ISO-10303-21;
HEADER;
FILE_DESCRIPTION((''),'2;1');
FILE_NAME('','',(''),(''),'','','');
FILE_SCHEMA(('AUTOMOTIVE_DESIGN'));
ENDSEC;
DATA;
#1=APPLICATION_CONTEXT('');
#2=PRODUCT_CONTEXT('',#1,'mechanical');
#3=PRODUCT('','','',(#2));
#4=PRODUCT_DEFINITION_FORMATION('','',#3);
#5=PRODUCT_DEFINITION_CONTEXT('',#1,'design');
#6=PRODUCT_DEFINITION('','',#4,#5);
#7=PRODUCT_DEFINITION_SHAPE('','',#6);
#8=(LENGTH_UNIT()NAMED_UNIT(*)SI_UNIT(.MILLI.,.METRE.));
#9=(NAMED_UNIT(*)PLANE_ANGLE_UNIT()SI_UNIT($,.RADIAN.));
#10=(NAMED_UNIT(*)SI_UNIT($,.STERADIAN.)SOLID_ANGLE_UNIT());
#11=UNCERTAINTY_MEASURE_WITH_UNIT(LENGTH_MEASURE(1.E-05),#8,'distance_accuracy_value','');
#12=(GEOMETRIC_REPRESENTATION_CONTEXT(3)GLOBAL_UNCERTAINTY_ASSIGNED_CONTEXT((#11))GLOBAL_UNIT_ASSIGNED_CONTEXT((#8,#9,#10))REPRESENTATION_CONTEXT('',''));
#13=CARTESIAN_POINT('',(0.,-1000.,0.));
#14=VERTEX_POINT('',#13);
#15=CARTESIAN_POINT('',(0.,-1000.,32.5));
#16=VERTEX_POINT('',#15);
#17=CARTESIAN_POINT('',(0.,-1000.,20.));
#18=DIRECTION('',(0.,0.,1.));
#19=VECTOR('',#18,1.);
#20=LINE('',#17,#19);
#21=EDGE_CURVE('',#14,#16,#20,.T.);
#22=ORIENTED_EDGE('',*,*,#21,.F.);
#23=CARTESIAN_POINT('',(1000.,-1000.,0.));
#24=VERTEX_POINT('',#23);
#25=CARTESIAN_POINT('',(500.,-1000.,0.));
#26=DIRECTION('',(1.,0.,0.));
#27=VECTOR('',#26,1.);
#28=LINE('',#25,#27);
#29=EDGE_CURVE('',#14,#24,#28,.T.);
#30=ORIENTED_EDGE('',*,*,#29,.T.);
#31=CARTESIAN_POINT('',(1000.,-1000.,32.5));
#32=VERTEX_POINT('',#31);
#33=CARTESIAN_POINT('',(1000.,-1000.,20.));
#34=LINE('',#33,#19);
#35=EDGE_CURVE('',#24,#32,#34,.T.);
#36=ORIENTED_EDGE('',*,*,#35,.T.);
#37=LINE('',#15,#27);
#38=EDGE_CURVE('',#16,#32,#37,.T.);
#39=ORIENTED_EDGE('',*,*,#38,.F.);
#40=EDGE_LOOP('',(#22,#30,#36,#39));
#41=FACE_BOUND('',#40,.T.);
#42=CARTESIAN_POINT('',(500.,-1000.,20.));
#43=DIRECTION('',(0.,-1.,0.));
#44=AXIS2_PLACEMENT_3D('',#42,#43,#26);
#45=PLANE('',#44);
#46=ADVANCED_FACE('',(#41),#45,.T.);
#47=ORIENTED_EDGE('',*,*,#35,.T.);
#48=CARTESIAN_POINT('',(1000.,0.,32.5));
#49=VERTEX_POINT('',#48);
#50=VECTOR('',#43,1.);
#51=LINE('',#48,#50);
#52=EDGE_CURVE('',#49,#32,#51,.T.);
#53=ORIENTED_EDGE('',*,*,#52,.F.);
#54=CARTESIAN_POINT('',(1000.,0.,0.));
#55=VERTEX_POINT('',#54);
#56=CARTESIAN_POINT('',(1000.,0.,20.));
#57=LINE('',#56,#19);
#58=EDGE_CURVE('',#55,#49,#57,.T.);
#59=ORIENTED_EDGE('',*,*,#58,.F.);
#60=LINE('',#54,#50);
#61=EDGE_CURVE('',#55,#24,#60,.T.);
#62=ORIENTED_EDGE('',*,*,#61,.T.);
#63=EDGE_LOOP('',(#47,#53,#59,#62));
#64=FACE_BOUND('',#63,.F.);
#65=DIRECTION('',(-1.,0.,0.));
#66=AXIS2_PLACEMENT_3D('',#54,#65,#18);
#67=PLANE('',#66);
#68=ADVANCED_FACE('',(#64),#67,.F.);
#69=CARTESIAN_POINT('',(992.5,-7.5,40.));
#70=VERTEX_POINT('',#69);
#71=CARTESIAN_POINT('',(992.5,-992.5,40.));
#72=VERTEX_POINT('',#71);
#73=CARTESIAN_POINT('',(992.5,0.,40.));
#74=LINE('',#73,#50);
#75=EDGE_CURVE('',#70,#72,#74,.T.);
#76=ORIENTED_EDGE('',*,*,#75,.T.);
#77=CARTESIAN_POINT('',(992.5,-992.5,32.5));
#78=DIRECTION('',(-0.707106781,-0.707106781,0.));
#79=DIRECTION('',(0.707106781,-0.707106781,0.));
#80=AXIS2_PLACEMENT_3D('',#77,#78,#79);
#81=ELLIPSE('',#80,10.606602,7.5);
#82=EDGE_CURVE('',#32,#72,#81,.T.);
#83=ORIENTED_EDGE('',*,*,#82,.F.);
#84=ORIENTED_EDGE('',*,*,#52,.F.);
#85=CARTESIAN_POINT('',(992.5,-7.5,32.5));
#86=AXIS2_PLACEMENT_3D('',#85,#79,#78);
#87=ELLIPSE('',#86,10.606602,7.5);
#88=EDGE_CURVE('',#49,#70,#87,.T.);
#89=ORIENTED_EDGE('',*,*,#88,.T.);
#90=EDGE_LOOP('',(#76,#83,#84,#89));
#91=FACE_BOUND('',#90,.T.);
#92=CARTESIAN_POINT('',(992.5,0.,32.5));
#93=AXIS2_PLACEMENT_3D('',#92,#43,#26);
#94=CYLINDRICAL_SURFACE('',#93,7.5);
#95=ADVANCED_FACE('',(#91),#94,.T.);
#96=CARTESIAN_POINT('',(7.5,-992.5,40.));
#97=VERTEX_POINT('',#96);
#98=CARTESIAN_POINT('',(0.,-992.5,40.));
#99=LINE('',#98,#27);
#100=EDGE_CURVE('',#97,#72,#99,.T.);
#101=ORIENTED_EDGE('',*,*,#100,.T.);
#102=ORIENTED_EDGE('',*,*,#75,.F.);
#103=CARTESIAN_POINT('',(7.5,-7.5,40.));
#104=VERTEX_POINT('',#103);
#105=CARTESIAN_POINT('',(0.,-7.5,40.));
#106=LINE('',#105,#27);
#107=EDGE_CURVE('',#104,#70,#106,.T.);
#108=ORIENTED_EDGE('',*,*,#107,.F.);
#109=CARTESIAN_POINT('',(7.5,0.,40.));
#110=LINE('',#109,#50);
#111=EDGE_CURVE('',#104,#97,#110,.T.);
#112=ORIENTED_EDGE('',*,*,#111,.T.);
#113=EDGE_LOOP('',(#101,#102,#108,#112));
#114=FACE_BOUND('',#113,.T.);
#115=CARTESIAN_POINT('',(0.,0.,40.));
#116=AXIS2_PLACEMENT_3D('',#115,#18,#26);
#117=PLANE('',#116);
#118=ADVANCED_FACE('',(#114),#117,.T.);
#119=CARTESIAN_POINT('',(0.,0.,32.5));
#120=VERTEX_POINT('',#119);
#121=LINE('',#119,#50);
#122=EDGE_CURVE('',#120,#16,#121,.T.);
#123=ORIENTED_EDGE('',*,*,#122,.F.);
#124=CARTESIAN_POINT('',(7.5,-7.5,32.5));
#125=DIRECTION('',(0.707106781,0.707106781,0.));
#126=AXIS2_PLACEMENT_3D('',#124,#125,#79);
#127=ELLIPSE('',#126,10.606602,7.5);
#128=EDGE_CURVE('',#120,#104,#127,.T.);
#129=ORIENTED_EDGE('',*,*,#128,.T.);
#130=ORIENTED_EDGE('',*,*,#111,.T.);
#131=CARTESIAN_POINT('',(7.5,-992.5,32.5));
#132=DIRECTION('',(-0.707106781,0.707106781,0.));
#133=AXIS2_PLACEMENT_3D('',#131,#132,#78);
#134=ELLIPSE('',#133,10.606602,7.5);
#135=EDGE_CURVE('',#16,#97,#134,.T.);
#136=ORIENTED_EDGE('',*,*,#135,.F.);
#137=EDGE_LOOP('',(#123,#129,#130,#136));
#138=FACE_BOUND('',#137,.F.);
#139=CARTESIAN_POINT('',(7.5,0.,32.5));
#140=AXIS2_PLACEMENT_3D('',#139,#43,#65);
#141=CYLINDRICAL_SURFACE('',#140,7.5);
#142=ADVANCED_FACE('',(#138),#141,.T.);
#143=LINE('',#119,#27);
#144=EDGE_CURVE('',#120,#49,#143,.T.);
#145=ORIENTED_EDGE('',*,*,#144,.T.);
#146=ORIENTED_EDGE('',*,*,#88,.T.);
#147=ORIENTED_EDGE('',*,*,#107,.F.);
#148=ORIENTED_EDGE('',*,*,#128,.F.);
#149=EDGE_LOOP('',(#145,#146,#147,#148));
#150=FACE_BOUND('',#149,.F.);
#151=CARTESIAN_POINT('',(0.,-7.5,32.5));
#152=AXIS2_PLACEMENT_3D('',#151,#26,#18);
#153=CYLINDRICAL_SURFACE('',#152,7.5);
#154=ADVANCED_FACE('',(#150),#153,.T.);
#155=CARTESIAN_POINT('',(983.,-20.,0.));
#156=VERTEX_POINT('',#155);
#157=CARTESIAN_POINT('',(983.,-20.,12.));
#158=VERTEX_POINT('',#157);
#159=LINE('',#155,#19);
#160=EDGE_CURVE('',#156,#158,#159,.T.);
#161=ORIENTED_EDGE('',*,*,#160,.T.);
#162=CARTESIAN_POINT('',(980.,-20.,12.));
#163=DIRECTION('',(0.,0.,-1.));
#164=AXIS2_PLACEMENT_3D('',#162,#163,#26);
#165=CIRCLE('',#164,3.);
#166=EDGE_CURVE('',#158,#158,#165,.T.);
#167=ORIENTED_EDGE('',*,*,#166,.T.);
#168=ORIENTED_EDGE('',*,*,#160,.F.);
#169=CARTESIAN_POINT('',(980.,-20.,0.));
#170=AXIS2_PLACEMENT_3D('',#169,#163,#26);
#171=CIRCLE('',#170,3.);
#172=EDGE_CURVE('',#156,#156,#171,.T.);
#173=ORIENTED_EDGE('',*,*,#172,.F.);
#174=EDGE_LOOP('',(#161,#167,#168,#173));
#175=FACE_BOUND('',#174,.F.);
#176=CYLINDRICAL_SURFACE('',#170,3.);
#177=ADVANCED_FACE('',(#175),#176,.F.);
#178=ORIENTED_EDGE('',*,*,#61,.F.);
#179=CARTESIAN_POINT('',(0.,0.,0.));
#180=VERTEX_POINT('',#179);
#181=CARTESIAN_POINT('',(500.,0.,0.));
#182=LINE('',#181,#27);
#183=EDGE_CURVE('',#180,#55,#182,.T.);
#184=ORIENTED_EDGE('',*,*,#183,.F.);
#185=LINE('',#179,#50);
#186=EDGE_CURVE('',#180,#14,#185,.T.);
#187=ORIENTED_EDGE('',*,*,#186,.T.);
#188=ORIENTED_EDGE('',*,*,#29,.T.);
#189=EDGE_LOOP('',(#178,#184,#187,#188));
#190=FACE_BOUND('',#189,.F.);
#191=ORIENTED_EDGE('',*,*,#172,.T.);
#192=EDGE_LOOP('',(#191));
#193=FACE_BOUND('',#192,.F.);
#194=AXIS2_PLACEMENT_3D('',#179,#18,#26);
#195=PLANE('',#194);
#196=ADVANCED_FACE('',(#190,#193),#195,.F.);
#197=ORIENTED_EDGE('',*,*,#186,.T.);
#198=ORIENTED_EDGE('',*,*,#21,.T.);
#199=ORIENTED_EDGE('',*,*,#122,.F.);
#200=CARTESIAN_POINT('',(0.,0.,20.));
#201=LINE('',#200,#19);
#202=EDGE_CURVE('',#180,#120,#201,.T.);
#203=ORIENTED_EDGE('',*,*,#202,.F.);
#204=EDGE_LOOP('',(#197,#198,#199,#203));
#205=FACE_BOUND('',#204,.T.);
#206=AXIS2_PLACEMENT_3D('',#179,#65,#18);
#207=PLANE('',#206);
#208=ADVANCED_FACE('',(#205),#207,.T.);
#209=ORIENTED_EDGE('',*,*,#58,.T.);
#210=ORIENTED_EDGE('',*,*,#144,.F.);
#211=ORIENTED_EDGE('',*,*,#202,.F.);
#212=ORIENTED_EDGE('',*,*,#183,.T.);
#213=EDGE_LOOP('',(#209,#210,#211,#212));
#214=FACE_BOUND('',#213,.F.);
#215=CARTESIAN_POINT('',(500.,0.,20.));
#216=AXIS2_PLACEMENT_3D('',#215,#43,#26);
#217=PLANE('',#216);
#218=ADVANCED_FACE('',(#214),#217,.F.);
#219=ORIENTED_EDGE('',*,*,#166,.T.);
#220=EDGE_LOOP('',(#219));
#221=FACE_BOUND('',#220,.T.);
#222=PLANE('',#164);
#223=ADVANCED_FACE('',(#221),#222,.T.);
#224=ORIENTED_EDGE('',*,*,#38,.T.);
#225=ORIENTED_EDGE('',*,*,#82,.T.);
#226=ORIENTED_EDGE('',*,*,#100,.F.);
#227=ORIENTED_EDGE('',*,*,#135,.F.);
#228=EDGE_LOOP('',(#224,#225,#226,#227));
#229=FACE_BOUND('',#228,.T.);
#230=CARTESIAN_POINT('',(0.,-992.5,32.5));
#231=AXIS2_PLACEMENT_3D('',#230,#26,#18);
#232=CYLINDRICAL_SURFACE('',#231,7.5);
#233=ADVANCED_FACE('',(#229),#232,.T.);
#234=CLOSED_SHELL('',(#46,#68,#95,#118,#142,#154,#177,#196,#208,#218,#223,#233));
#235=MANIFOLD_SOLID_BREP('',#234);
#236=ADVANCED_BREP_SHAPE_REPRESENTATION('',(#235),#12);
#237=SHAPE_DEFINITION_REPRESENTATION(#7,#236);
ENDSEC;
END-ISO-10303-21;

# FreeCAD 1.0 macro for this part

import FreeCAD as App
import Part
import Sketcher

V = App.Vector
Q = App.Units.Quantity


def edges_at(feature, points):
    """Names of the edges that pass closest to the given points."""
    edges = feature.Shape.Edges
    near = lambda p: min(range(len(edges)), key=lambda i: edges[i].distToShape(Part.Vertex(*p))[0])
    return sorted({f"Edge{near(p) + 1}" for p in points})

doc = App.newDocument("Part")
body = doc.addObject("PartDesign::Body", "Body")

sketch1 = doc.addObject("Sketcher::SketchObject", "Sketch")
body.addObject(sketch1)
sketch1.AttachmentSupport = (doc.XZ_Plane, [""])
sketch1.MapMode = "FlatFace"
sketch1.addGeometry([
    Part.LineSegment(V(0, 40, 0), V(0, 0, 0)),
    Part.LineSegment(V(0, 0, 0), V(1000, 0, 0)),
    Part.LineSegment(V(1000, 0, 0), V(1000, 40, 0)),
    Part.LineSegment(V(1000, 40, 0), V(0, 40, 0)),
], False)
sketch1.addConstraint([
    Sketcher.Constraint("Coincident", 0, 2, 1, 1),
    Sketcher.Constraint("Coincident", 1, 2, 2, 1),
    Sketcher.Constraint("Coincident", 2, 2, 3, 1),
    Sketcher.Constraint("Coincident", 3, 2, 0, 1),
    Sketcher.Constraint("Vertical", 0),
    Sketcher.Constraint("Horizontal", 1),
    Sketcher.Constraint("Vertical", 2),
    Sketcher.Constraint("Horizontal", 3),
    Sketcher.Constraint("Coincident", 0, 2, -1, 1),
    Sketcher.Constraint("DistanceX", 1, 1, 1, 2, Q("1000 mm")),
    Sketcher.Constraint("DistanceY", 0, 2, 0, 1, Q("40 mm")),
])
pad1 = doc.addObject("PartDesign::Pad", "Pad")
body.addObject(pad1)
pad1.Profile = sketch1
pad1.Length = 1000
doc.recompute()

fillet = doc.addObject("PartDesign::Fillet", "Fillet")
body.addObject(fillet)
fillet.Base = (pad1, edges_at(pad1, [
    (1000, -500, 40),
    (0, -500, 40),
    (500, 0, 40),
    (500, -1000, 40),
]))
fillet.Radius = 7.5

sketch2 = doc.addObject("Sketcher::SketchObject", "Sketch001")
body.addObject(sketch2)
sketch2.AttachmentSupport = (doc.XY_Plane, [""])
sketch2.MapMode = "FlatFace"
sketch2.addGeometry(Part.Circle(V(980, -20, 0), V(0, 0, 1), 3), False)
sketch2.addConstraint([
    Sketcher.Constraint("Diameter", 0, Q("6 mm")),
    Sketcher.Constraint("DistanceX", -1, 1, 0, 3, Q("980 mm")),
    Sketcher.Constraint("DistanceY", 0, 3, -1, 1, Q("20 mm")),
])
pocket1 = doc.addObject("PartDesign::Pocket", "Pocket")
body.addObject(pocket1)
pocket1.Profile = sketch2
pocket1.Length = 12
pocket1.Reversed = True

doc.recompute()
